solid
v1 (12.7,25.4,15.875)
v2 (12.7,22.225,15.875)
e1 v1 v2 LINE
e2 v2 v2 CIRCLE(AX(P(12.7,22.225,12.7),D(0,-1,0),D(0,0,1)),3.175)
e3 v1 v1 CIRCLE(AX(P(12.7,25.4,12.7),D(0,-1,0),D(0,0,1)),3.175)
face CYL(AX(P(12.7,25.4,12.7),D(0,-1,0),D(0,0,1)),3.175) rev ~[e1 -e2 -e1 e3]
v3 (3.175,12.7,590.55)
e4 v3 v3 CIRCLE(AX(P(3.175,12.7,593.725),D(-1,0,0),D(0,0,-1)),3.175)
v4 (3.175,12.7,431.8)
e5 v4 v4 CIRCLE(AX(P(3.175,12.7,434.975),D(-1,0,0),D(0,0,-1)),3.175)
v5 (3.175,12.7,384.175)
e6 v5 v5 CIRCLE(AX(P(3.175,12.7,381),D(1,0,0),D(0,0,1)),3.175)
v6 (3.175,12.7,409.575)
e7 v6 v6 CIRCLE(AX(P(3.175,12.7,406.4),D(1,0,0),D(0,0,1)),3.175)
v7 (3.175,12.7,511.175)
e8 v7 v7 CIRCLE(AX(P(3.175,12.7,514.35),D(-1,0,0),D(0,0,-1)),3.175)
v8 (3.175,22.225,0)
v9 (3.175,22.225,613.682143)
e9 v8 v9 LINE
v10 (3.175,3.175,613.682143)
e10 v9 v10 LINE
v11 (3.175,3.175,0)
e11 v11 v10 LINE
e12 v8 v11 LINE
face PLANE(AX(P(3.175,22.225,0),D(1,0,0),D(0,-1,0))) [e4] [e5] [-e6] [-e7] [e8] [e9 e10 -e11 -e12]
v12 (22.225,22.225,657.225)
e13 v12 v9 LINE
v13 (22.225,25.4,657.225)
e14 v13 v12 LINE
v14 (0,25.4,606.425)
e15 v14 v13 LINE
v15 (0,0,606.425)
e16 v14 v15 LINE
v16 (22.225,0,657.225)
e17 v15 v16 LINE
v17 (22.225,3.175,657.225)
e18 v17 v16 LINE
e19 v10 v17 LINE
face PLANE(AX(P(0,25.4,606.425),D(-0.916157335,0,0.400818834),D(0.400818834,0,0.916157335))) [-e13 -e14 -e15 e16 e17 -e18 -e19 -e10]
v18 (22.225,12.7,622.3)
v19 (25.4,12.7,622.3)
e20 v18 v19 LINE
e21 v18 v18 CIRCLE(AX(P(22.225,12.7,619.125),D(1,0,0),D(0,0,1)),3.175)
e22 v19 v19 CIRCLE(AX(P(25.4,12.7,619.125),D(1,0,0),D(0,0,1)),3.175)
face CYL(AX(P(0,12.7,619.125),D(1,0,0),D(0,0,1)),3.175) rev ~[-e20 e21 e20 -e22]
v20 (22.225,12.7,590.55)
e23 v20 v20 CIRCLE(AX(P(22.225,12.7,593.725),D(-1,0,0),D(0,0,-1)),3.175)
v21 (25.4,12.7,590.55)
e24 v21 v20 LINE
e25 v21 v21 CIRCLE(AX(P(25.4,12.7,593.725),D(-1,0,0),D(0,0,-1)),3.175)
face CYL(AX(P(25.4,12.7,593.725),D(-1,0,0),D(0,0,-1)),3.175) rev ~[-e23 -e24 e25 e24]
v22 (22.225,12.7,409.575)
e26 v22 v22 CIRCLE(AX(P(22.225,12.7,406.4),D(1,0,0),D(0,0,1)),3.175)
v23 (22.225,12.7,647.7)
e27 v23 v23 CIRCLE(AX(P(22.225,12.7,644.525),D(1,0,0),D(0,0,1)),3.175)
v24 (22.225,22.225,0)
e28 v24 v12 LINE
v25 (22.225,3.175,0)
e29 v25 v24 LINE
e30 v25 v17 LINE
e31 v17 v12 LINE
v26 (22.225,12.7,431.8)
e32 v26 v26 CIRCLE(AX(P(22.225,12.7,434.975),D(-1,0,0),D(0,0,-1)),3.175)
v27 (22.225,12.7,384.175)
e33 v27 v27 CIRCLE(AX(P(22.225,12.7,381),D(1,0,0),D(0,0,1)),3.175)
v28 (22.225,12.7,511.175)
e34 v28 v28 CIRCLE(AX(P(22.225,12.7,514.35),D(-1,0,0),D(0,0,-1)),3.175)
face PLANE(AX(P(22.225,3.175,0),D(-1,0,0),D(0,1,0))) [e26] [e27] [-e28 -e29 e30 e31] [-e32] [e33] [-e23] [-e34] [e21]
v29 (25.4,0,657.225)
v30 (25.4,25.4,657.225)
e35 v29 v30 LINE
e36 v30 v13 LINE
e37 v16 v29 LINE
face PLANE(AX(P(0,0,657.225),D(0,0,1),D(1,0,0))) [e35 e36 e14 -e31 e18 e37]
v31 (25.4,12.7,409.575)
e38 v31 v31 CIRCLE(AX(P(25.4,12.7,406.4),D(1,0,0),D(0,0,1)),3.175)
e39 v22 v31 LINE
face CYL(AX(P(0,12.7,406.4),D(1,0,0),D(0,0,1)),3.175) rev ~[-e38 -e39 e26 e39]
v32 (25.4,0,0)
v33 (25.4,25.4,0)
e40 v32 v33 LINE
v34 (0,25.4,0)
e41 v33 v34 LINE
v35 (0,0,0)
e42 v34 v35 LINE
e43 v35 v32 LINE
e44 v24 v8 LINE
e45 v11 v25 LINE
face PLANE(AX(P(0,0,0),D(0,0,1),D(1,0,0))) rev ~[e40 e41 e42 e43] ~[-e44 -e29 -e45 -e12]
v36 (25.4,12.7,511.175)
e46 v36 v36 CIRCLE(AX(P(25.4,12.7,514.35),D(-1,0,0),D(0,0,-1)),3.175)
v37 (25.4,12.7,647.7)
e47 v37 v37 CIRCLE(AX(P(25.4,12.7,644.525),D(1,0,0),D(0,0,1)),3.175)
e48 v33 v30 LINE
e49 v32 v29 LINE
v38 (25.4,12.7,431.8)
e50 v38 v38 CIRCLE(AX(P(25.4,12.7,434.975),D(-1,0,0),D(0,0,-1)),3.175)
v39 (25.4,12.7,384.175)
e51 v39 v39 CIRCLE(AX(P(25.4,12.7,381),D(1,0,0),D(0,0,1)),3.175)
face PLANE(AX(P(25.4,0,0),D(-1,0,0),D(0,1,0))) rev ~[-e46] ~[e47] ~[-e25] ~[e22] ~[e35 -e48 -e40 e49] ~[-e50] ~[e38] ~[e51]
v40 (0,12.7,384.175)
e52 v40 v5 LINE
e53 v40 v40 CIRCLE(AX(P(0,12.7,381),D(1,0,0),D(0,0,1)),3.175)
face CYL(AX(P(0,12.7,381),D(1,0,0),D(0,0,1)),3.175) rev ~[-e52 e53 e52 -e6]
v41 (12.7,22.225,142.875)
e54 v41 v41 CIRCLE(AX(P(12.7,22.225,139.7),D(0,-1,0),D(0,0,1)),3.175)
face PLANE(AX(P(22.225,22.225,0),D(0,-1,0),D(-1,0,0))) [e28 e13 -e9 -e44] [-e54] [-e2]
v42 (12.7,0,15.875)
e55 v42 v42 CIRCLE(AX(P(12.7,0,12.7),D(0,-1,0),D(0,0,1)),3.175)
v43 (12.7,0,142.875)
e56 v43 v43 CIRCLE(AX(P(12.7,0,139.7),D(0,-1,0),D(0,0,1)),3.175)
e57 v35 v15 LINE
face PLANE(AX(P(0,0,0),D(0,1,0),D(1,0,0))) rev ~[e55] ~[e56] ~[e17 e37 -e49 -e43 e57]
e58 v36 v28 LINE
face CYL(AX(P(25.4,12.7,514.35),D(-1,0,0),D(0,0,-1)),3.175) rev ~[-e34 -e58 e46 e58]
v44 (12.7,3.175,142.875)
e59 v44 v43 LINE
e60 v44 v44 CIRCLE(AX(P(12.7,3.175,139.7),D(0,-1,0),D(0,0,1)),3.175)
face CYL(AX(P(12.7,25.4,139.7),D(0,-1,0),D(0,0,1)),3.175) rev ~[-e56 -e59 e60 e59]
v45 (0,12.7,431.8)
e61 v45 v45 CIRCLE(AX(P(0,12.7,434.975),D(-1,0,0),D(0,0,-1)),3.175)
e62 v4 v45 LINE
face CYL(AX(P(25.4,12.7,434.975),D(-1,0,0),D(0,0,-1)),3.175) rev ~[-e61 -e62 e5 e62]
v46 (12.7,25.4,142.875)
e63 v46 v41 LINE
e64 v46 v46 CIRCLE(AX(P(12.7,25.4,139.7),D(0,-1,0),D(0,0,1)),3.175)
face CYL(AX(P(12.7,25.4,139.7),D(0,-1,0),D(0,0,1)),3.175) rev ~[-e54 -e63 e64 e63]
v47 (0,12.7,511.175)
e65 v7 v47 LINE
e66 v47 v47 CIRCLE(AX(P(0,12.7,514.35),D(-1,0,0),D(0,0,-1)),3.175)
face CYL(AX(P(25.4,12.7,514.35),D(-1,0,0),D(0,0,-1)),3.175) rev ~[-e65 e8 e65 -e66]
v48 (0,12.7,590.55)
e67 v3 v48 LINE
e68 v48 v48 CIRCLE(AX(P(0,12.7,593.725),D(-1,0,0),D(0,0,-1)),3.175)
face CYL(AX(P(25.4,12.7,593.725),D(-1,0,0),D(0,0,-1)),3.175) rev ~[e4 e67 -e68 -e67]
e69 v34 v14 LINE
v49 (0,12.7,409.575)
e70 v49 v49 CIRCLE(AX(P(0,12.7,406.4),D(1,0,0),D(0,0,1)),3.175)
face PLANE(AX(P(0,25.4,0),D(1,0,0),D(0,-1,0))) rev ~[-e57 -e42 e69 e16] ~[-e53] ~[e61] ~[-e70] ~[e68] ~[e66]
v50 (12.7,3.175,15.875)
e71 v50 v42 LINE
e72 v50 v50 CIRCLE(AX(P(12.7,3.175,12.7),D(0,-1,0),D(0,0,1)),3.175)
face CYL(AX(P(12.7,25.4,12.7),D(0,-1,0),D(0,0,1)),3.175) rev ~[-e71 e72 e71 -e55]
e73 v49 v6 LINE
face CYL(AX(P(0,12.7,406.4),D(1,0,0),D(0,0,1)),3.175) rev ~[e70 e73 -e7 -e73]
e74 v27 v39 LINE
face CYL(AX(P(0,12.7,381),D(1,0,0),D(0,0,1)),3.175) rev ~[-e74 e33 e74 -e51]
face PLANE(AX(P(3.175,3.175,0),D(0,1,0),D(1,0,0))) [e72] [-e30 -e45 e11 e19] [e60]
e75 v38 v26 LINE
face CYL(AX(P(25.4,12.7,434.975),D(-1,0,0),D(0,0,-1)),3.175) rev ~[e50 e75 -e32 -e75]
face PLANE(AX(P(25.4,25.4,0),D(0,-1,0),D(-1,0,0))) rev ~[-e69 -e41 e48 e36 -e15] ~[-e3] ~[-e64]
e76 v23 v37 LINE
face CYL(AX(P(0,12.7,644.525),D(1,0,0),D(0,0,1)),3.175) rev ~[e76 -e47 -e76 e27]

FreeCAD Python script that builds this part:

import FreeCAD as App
import Part
import Sketcher
from FreeCAD import Vector
Q = App.Units.Quantity


def add_polygon(sketch, points):
    """Adds a closed chain of lines whose ends are joined by coincident constraints."""
    first, n = sketch.GeometryCount, len(points)
    for a, b in zip(points, points[1:] + points[:1]):
        sketch.addGeometry(Part.LineSegment(App.Vector(*a, 0), App.Vector(*b, 0)), False)
    for i in range(n):
        sketch.addConstraint(Sketcher.Constraint("Coincident", first + i, 2, first + (i + 1) % n, 1))

doc = App.newDocument("Part")
params = doc.addObject("Spreadsheet::Sheet", "Params")
for row, (alias, value) in enumerate([
    ("sketch1_width", "1 in"),
    ("sketch1_width2", "0.75 in"),
    ("pad1_length", "25.875 in"),
    ("sketch2_diameter", "0.25 in"),
    ("hole_diameter", "0.25 in"),
    ("sketch3_diameter", "0.25 in"),
    ("hole2_diameter", "0.25 in"),
    ("sketch4_height", "2 in"),
    ("sketch4_width", "0.875 in"),
    ("pocket1_length", "1 in"),
    ("sketch5_diameter", "0.25 in"),
    ("hole3_diameter", "0.25 in"),
], start=1):
    params.set(f"A{row}", alias)
    params.set(f"B{row}", "=" + value)
    params.setAlias(f"B{row}", alias)

body = doc.addObject("PartDesign::Body", "Body")

sketch1 = doc.addObject("Sketcher::SketchObject", "Sketch")
body.addObject(sketch1)
sketch1.AttachmentSupport = (doc.XY_Plane, [""])
sketch1.MapMode = "FlatFace"
add_polygon(sketch1, [(0, 25), (0, 0), (25, 0), (25, 25)])
add_polygon(sketch1, [(22, 3), (3, 3), (3, 22), (22, 22)])
sketch1.addConstraint([
    Sketcher.Constraint("Vertical", 0),
    Sketcher.Constraint("Horizontal", 1),
    Sketcher.Constraint("Vertical", 2),
    Sketcher.Constraint("Horizontal", 3),
    Sketcher.Constraint("Horizontal", 4),
    Sketcher.Constraint("Vertical", 5),
    Sketcher.Constraint("Horizontal", 6),
    Sketcher.Constraint("Vertical", 7),
    Sketcher.Constraint("Coincident", 0, 2, -1, 1),
    Sketcher.Constraint("Equal", 3, 0),
    Sketcher.Constraint("Equal", 6, 5),
    Sketcher.Constraint("DistanceX", 1, 1, 1, 2, Q("1 in")),
    Sketcher.Constraint("DistanceX", 4, 2, 4, 1, Q("0.75 in")),
    Sketcher.Constraint("DistanceX", -1, 1, 4, 2, Q("0.125 in")),
    Sketcher.Constraint("DistanceY", -1, 1, 4, 2, Q("0.125 in")),
])
sketch1.setExpression("Constraints[19]", "Params.sketch1_width")
sketch1.setExpression("Constraints[20]", "Params.sketch1_width2")
pad1 = doc.addObject("PartDesign::Pad", "Pad")
body.addObject(pad1)
pad1.Profile = sketch1
pad1.setExpression("Length", "Params.pad1_length")

sketch2 = doc.addObject("Sketcher::SketchObject", "Sketch001")
body.addObject(sketch2)
sketch2.AttachmentSupport = (doc.XZ_Plane, [""])
sketch2.MapMode = "FlatFace"
sketch2.AttachmentOffset = App.Placement(Vector(0, 0, -1 * 25.4), App.Rotation())
sketch2.addGeometry([
    Part.Circle(Vector(12.7, 12.7, 0), Vector(0, 0, 1), 3.2),
    Part.Circle(Vector(12.7, 139.7, 0), Vector(0, 0, 1), 3.2),
], False)
sketch2.addConstraint([
    Sketcher.Constraint("Equal", 0, 1),
    Sketcher.Constraint("Vertical", 0, 3, 1, 3),
    Sketcher.Constraint("Diameter", 0, Q("0.25 in")),
    Sketcher.Constraint("DistanceY", 0, 3, 1, 3, Q("5 in")),
    Sketcher.Constraint("DistanceX", -1, 1, 0, 3, Q("0.5 in")),
    Sketcher.Constraint("DistanceY", -1, 1, 0, 3, Q("0.5 in")),
])
sketch2.setExpression("Constraints[2]", "Params.sketch2_diameter")
doc.recompute()
hole = doc.addObject("PartDesign::Hole", "Hole")
body.addObject(hole)
hole.Profile = sketch2
hole.ThreadType = "None"
hole.setExpression("Diameter", "Params.hole_diameter")
hole.DepthType = "ThroughAll"
hole.Reversed = True

sketch3 = doc.addObject("Sketcher::SketchObject", "Sketch002")
body.addObject(sketch3)
sketch3.AttachmentSupport = (doc.YZ_Plane, [""])
sketch3.MapMode = "FlatFace"
sketch3.addGeometry([
    Part.Circle(Vector(12.7, 644.5, 0), Vector(0, 0, 1), 3.2),
    Part.Circle(Vector(12.7, 619.1, 0), Vector(0, 0, 1), 3.2),
    Part.Circle(Vector(12.7, 406.4, 0), Vector(0, 0, 1), 3.2),
    Part.Circle(Vector(12.7, 381, 0), Vector(0, 0, 1), 3.2),
], False)
sketch3.addConstraint([
    Sketcher.Constraint("Equal", 0, 1),
    Sketcher.Constraint("Equal", 1, 2),
    Sketcher.Constraint("Equal", 2, 3),
    Sketcher.Constraint("Vertical", 0, 3, 1, 3),
    Sketcher.Constraint("Vertical", 1, 3, 2, 3),
    Sketcher.Constraint("Vertical", 2, 3, 3, 3),
    Sketcher.Constraint("Diameter", 0, Q("0.25 in")),
    Sketcher.Constraint("DistanceY", -1, 1, 2, 3, Q("16 in")),
    Sketcher.Constraint("DistanceY", -1, 1, 3, 3, Q("15 in")),
    Sketcher.Constraint("DistanceY", 1, 3, 0, 3, Q("1 in")),
    Sketcher.Constraint("DistanceX", -1, 1, 0, 3, Q("0.5 in")),
    Sketcher.Constraint("DistanceY", -1, 1, 0, 3, Q("25.375 in")),
])
sketch3.setExpression("Constraints[6]", "Params.sketch3_diameter")
doc.recompute()
hole2 = doc.addObject("PartDesign::Hole", "Hole001")
body.addObject(hole2)
hole2.Profile = sketch3
hole2.ThreadType = "None"
hole2.setExpression("Diameter", "Params.hole2_diameter")
hole2.DepthType = "ThroughAll"
hole2.Reversed = True

sketch4 = doc.addObject("Sketcher::SketchObject", "Sketch003")
body.addObject(sketch4)
sketch4.AttachmentSupport = (doc.XZ_Plane, [""])
sketch4.MapMode = "FlatFace"
sketch4.AttachmentOffset = App.Placement(Vector(0, 0, -1 * 25.4), App.Rotation())
add_polygon(sketch4, [(22, 657), (0, 606), (0, 657)])
sketch4.addConstraint([
    Sketcher.Constraint("Vertical", 1),
    Sketcher.Constraint("Horizontal", 2),
    Sketcher.Constraint("PointOnObject", 0, 2, -2),
    Sketcher.Constraint("DistanceY", 1, 1, 1, 2, Q("2 in")),
    Sketcher.Constraint("DistanceX", 2, 1, 2, 2, Q("0.875 in")),
    Sketcher.Constraint("DistanceY", -1, 1, 0, 2, Q("23.875 in")),
])
sketch4.setExpression("Constraints[6]", "Params.sketch4_height")
sketch4.setExpression("Constraints[7]", "Params.sketch4_width")
pocket1 = doc.addObject("PartDesign::Pocket", "Pocket")
body.addObject(pocket1)
pocket1.Profile = sketch4
pocket1.setExpression("Length", "Params.pocket1_length")
pocket1.Reversed = True

sketch5 = doc.addObject("Sketcher::SketchObject", "Sketch004")
body.addObject(sketch5)
sketch5.AttachmentSupport = (doc.YZ_Plane, [""])
sketch5.MapMode = "FlatFace"
sketch5.AttachmentOffset = App.Placement(Vector(0, 0, 1 * 25.4), App.Rotation())
sketch5.addGeometry([
    Part.Circle(Vector(12.7, 593.7, 0), Vector(0, 0, 1), 3.2),
    Part.Circle(Vector(12.7, 514.4, 0), Vector(0, 0, 1), 3.2),
    Part.Circle(Vector(12.7, 435, 0), Vector(0, 0, 1), 3.2),
], False)
sketch5.addConstraint([
    Sketcher.Constraint("Equal", 0, 1),
    Sketcher.Constraint("Equal", 1, 2),
    Sketcher.Constraint("Vertical", 0, 3, 1, 3),
    Sketcher.Constraint("Vertical", 1, 3, 2, 3),
    Sketcher.Constraint("Diameter", 0, Q("0.25 in")),
    Sketcher.Constraint("DistanceX", -1, 1, 0, 3, Q("0.5 in")),
    Sketcher.Constraint("DistanceY", -1, 1, 1, 3, Q("20.25 in")),
    Sketcher.Constraint("DistanceY", 2, 3, 0, 3, Q("6.25 in")),
    Sketcher.Constraint("DistanceY", -1, 1, 0, 3, Q("23.375 in")),
])
sketch5.setExpression("Constraints[4]", "Params.sketch5_diameter")
doc.recompute()
hole3 = doc.addObject("PartDesign::Hole", "Hole002")
body.addObject(hole3)
hole3.Profile = sketch5
hole3.ThreadType = "None"
hole3.setExpression("Diameter", "Params.hole3_diameter")
hole3.DepthType = "ThroughAll"

doc.recompute()
